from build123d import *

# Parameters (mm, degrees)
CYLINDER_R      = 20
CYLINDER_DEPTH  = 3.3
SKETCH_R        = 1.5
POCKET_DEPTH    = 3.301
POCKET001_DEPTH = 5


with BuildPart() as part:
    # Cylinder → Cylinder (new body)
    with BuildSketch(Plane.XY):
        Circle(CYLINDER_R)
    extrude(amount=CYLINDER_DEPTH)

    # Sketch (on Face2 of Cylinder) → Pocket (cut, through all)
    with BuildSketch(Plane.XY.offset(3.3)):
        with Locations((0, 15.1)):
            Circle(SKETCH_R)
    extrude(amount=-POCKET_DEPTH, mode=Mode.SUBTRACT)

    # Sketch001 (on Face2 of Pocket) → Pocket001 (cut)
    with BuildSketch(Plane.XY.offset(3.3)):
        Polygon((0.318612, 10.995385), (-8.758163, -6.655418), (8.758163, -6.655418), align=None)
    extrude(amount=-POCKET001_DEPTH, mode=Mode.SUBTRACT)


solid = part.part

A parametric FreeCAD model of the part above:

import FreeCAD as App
import Part
import Sketcher


def add_polygon(sketch, points):
    """Adds a closed chain of lines whose ends are joined by coincident constraints."""
    first, n = sketch.GeometryCount, len(points)
    for a, b in zip(points, points[1:] + points[:1]):
        sketch.addGeometry(Part.LineSegment(App.Vector(*a, 0), App.Vector(*b, 0)), False)
    for i in range(n):
        sketch.addConstraint(Sketcher.Constraint("Coincident", first + i, 2, first + (i + 1) % n, 1))

doc = App.newDocument("Part")
body = doc.addObject("PartDesign::Body", "Body")

sketch1 = body.newObject("Sketcher::SketchObject", "Sketch")
sketch1.AttachmentSupport = (doc.getObject("XY_Plane"), [""])
sketch1.MapMode = "FlatFace"
sketch1.addGeometry(Part.Circle(App.Vector(0, 0, 0), App.Vector(0, 0, 1), 20), False)
sketch1.addConstraint(Sketcher.Constraint("Coincident", 0, 3, -1, 1))
sketch1.addConstraint(Sketcher.Constraint("Diameter", 0, 40.0))
pad1 = body.newObject("PartDesign::Pad", "Pad")
pad1.Profile = sketch1
pad1.Length = 3.3

sketch2 = body.newObject("Sketcher::SketchObject", "Sketch001")
sketch2.AttachmentSupport = (doc.getObject("XY_Plane"), [""])
sketch2.MapMode = "FlatFace"
sketch2.AttachmentOffset = App.Placement(App.Vector(0, 0, 3.3), App.Rotation())
sketch2.addGeometry(Part.Circle(App.Vector(0, 15.1, 0), App.Vector(0, 0, 1), 1.5), False)
sketch2.addConstraint(Sketcher.Constraint("PointOnObject", 0, 3, -2))
sketch2.addConstraint(Sketcher.Constraint("Diameter", 0, 3.0))
sketch2.addConstraint(Sketcher.Constraint("DistanceY", -1, 1, 0, 3, 15.1))
pocket1 = body.newObject("PartDesign::Pocket", "Pocket")
pocket1.Profile = sketch2
pocket1.Type = "ThroughAll"

sketch3 = body.newObject("Sketcher::SketchObject", "Sketch002")
sketch3.AttachmentSupport = (doc.getObject("XY_Plane"), [""])
sketch3.MapMode = "FlatFace"
sketch3.AttachmentOffset = App.Placement(App.Vector(0, 0, 3.3), App.Rotation())
add_polygon(sketch3, [(0, 11), (-9, -7), (9, -7)])
sketch3.addConstraint(Sketcher.Constraint("Horizontal", 1))
sketch3.addConstraint(Sketcher.Constraint("Distance", 0, 19.847889))
sketch3.addConstraint(Sketcher.Constraint("DistanceX", 1, 1, 1, 2, 17.516326))
sketch3.addConstraint(Sketcher.Constraint("DistanceX", 2, 2, 1, 2, 8.439551))
sketch3.addConstraint(Sketcher.Constraint("DistanceX", 0, 2, -1, 1, 8.758163))
sketch3.addConstraint(Sketcher.Constraint("DistanceY", 0, 2, -1, 1, 6.655418))
pocket2 = body.newObject("PartDesign::Pocket", "Pocket001")
pocket2.Profile = sketch3
pocket2.Length = 5

doc.recompute()
